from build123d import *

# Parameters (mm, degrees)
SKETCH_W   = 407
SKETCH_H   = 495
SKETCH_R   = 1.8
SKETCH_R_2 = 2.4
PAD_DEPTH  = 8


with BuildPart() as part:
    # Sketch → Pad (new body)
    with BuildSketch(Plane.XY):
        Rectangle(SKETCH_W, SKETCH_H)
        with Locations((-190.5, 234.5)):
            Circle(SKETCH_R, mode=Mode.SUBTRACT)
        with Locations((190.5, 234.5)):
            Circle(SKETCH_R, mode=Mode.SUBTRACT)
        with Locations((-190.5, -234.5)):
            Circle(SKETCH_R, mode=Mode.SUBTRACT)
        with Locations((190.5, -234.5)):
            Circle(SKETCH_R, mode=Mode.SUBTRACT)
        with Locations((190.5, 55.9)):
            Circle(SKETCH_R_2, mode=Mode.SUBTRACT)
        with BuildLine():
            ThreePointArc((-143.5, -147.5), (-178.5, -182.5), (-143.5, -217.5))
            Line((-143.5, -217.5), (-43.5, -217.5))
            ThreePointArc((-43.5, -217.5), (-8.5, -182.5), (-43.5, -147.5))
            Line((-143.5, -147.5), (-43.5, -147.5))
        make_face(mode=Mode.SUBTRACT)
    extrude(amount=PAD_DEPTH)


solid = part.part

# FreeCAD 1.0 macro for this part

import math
import FreeCAD as App
import Part
import Sketcher
from FreeCAD import Vector
Q = App.Units.Quantity


def add_polygon(sketch, points):
    """Adds a closed chain of lines whose ends are joined by coincident constraints."""
    first, n = sketch.GeometryCount, len(points)
    for a, b in zip(points, points[1:] + points[:1]):
        sketch.addGeometry(Part.LineSegment(App.Vector(*a, 0), App.Vector(*b, 0)), False)
    for i in range(n):
        sketch.addConstraint(Sketcher.Constraint("Coincident", first + i, 2, first + (i + 1) % n, 1))

doc = App.newDocument("Part")
body = doc.addObject("PartDesign::Body", "Body")

# Sketch on XY plane
sketch1 = doc.addObject("Sketcher::SketchObject", "Sketch")
body.addObject(sketch1)
sketch1.AttachmentSupport = (doc.XY_Plane, [""])
sketch1.MapMode = "FlatFace"
add_polygon(sketch1, [(-203.5, 247.5), (-203.5, -247.5), (203.5, -247.5), (203.5, 247.5)])  # lines 0-3
sketch1.addGeometry(Part.Circle(Vector(-190.5, -234.5, 0), Vector(0, 0, 1), 1.8), False)  # 4
sketch1.addGeometry(Part.ArcOfCircle(Part.Circle(Vector(-143.5, -182.5, 0), Vector(0, 0, 1), 35), math.radians(90), math.radians(270)), False)  # 5
sketch1.addGeometry(Part.LineSegment(Vector(-143.5, -147.5, 0), Vector(-43.5, -147.5, 0)), False)  # 6
sketch1.addGeometry(Part.ArcOfCircle(Part.Circle(Vector(-43.5, -182.5, 0), Vector(0, 0, 1), 35), math.radians(-90), math.radians(90)), False)  # 7
sketch1.addGeometry(Part.LineSegment(Vector(-43.5, -217.5, 0), Vector(-143.5, -217.5, 0)), False)  # 8
sketch1.addGeometry(Part.Circle(Vector(190.5, -234.5, 0), Vector(0, 0, 1), 1.8), False)  # 9
sketch1.addGeometry(Part.Circle(Vector(-190.5, 234.5, 0), Vector(0, 0, 1), 1.8), False)  # 10
sketch1.addGeometry(Part.Circle(Vector(190.5, 55.9, 0), Vector(0, 0, 1), 2.4), False)  # 11
sketch1.addGeometry(Part.Circle(Vector(190.5, 234.5, 0), Vector(0, 0, 1), 1.8), False)  # 12
sketch1.addConstraint([
    Sketcher.Constraint("Tangent", 5, 1, 6, 1),
    Sketcher.Constraint("Tangent", 6, 2, 7, 2),
    Sketcher.Constraint("Tangent", 7, 1, 8, 1),
    Sketcher.Constraint("Tangent", 8, 2, 5, 2),
    Sketcher.Constraint("Vertical", 0),
    Sketcher.Constraint("Horizontal", 1),
    Sketcher.Constraint("Vertical", 2),
    Sketcher.Constraint("Horizontal", 3),
    Sketcher.Constraint("Horizontal", 6),
    Sketcher.Constraint("Horizontal", 8),
    Sketcher.Constraint("Equal", 4, 9),
    Sketcher.Constraint("Equal", 9, 10),
    Sketcher.Constraint("Equal", 10, 12),
    Sketcher.Constraint("Symmetric", 9, 3, 10, 3, -1, 1),
    Sketcher.Constraint("Symmetric", 4, 3, 12, 3, -1, 1),
    Sketcher.Constraint("Symmetric", 0, 2, 2, 2, -1, 1),
    Sketcher.Constraint("Symmetric", 4, 3, 9, 3, -2),
    Sketcher.Constraint("Vertical", 9, 3, 11, 3),
    Sketcher.Constraint("Radius", 5, Q("35 mm")),
    Sketcher.Constraint("Diameter", 4, Q("3.6 mm")),
    Sketcher.Constraint("Diameter", 11, Q("4.8 mm")),
    Sketcher.Constraint("DistanceX", 1, 1, 1, 2, Q("407 mm")),
    Sketcher.Constraint("DistanceX", 6, 1, 6, 2, Q("100 mm")),
    Sketcher.Constraint("DistanceY", 0, 2, 0, 1, Q("495 mm")),
    Sketcher.Constraint("DistanceX", 4, 3, 5, 3, Q("47 mm")),
    Sketcher.Constraint("DistanceY", 4, 3, 5, 3, Q("52 mm")),
    Sketcher.Constraint("DistanceX", 7, 3, 9, 3, Q("234 mm")),
    Sketcher.Constraint("DistanceY", 5, 3, 10, 3, Q("417 mm")),
    Sketcher.Constraint("DistanceY", -1, 1, 11, 3, Q("55.9 mm")),
])
pad1 = doc.addObject("PartDesign::Pad", "Pad")
body.addObject(pad1)
pad1.Profile = sketch1
pad1.Length = 8

doc.recompute()
